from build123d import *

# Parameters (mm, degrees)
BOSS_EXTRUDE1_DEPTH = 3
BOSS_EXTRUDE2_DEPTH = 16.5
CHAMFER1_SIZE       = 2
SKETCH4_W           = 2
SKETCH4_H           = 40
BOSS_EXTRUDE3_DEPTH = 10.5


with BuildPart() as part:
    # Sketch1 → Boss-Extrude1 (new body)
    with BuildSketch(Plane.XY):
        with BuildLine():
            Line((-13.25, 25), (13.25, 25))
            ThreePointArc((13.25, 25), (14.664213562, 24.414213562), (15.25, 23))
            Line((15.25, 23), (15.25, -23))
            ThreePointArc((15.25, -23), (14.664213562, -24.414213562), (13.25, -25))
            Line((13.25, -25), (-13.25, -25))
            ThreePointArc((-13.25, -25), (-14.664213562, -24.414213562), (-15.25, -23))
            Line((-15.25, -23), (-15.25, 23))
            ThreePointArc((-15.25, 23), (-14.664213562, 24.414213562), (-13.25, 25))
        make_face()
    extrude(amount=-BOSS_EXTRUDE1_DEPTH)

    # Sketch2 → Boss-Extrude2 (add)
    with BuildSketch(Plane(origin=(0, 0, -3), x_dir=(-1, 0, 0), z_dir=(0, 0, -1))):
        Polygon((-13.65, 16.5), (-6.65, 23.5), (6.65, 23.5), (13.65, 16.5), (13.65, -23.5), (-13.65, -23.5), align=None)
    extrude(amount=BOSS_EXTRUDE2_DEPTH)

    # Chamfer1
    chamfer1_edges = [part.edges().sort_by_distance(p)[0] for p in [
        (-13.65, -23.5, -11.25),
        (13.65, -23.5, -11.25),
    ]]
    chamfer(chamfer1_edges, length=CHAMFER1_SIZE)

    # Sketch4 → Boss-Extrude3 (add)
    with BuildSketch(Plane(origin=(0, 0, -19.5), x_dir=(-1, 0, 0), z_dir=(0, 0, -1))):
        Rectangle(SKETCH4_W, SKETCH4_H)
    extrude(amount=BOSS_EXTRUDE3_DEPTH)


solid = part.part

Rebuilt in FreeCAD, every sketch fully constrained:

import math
import FreeCAD as App
import Part
import Sketcher
from FreeCAD import Vector
Q = App.Units.Quantity


def edges_at(feature, points):
    """Names of the edges that pass closest to the given points."""
    edges = feature.Shape.Edges
    near = lambda p: min(range(len(edges)), key=lambda i: edges[i].distToShape(Part.Vertex(*p))[0])
    return sorted({f"Edge{near(p) + 1}" for p in points})

doc = App.newDocument("Part")
body = doc.addObject("PartDesign::Body", "Body")

# Sketch on XY plane
sketch1 = body.newObject("Sketcher::SketchObject", "Sketch")
sketch1.AttachmentSupport = (doc.getObject("XY_Plane"), [""])
sketch1.MapMode = "FlatFace"
sketch1.addGeometry([
    Part.LineSegment(Vector(13.2, 25, 0), Vector(-13.2, 25, 0)),  # 0
    Part.ArcOfCircle(Part.Circle(Vector(-13.2, 23, 0), Vector(0, 0, 1), 2), math.radians(90), math.radians(180)),  # 1
    Part.LineSegment(Vector(-15.2, 23, 0), Vector(-15.2, -23, 0)),  # 2
    Part.ArcOfCircle(Part.Circle(Vector(-13.2, -23, 0), Vector(0, 0, 1), 2), math.radians(-180), math.radians(-90)),  # 3
    Part.LineSegment(Vector(-13.2, -25, 0), Vector(13.2, -25, 0)),  # 4
    Part.ArcOfCircle(Part.Circle(Vector(13.2, -23, 0), Vector(0, 0, 1), 2), math.radians(-90), math.radians(0)),  # 5
    Part.LineSegment(Vector(15.2, -23, 0), Vector(15.2, 23, 0)),  # 6
    Part.ArcOfCircle(Part.Circle(Vector(13.2, 23, 0), Vector(0, 0, 1), 2), math.radians(0), math.radians(90)),  # 7
], False)
sketch1.addConstraint([
    Sketcher.Constraint("Tangent", 0, 2, 1, 1),
    Sketcher.Constraint("Tangent", 1, 2, 2, 1),
    Sketcher.Constraint("Tangent", 2, 2, 3, 1),
    Sketcher.Constraint("Tangent", 3, 2, 4, 1),
    Sketcher.Constraint("Tangent", 4, 2, 5, 1),
    Sketcher.Constraint("Tangent", 5, 2, 6, 1),
    Sketcher.Constraint("Tangent", 6, 2, 7, 1),
    Sketcher.Constraint("Tangent", 7, 2, 0, 1),
    Sketcher.Constraint("Horizontal", 0),
    Sketcher.Constraint("Vertical", 2),
    Sketcher.Constraint("Horizontal", 4),
    Sketcher.Constraint("Vertical", 6),
    Sketcher.Constraint("Equal", 1, 3),
    Sketcher.Constraint("Equal", 3, 5),
    Sketcher.Constraint("Equal", 5, 7),
    Sketcher.Constraint("Symmetric", 1, 3, 5, 3, -1, 1),
    Sketcher.Constraint("Radius", 1, Q("2 mm")),
    Sketcher.Constraint("DistanceY", 2, 2, 2, 1, Q("46 mm")),
    Sketcher.Constraint("DistanceX", 0, 2, 0, 1, Q("26.5 mm")),
])
pad1 = body.newObject("PartDesign::Pad", "Pad")
pad1.Profile = sketch1
pad1.Length = 3
pad1.Reversed = True

# Sketch on XY plane
sketch2 = body.newObject("Sketcher::SketchObject", "Sketch001")
sketch2.AttachmentSupport = (doc.getObject("XY_Plane"), [""])
sketch2.MapMode = "FlatFace"
sketch2.AttachmentOffset = App.Placement(Vector(0, 0, -3), App.Rotation())
sketch2.addGeometry([
    Part.LineSegment(Vector(7, 24, 0), Vector(14, 16, 0)),  # 0
    Part.LineSegment(Vector(14, 16, 0), Vector(14, -24, 0)),  # 1
    Part.LineSegment(Vector(14, -24, 0), Vector(-14, -24, 0)),  # 2
    Part.LineSegment(Vector(-14, -24, 0), Vector(-14, 16, 0)),  # 3
    Part.LineSegment(Vector(-14, 16, 0), Vector(-7, 24, 0)),  # 4
    Part.LineSegment(Vector(-7, 24, 0), Vector(7, 24, 0)),  # 5
], False)
sketch2.addConstraint([
    Sketcher.Constraint("Coincident", 0, 2, 1, 1),
    Sketcher.Constraint("Coincident", 1, 2, 2, 1),
    Sketcher.Constraint("Coincident", 2, 2, 3, 1),
    Sketcher.Constraint("Coincident", 3, 2, 4, 1),
    Sketcher.Constraint("Coincident", 4, 2, 5, 1),
    Sketcher.Constraint("Coincident", 5, 2, 0, 1),
    Sketcher.Constraint("Vertical", 1),
    Sketcher.Constraint("Horizontal", 2),
    Sketcher.Constraint("Vertical", 3),
    Sketcher.Constraint("Horizontal", 5),
    Sketcher.Constraint("Symmetric", 0, 2, 3, 2, -2),
    Sketcher.Constraint("Perpendicular", 0, 4),
    Sketcher.Constraint("Equal", 0, 4),
    Sketcher.Constraint("DistanceY", 1, 2, 1, 1, Q("40 mm")),
    Sketcher.Constraint("DistanceX", 2, 2, 2, 1, Q("27.3 mm")),
    Sketcher.Constraint("DistanceX", 5, 1, 5, 2, Q("13.3 mm")),
    Sketcher.Constraint("DistanceY", -1, 1, 0, 2, Q("16.5 mm")),
])
pad2 = body.newObject("PartDesign::Pad", "Pad001")
pad2.Profile = sketch2
pad2.Length = 16.5
pad2.Reversed = True
doc.recompute()

chamfer = body.newObject("PartDesign::Chamfer", "Chamfer")
chamfer.Base = (pad2, edges_at(pad2, [(-13.65, -23.5, -11.25), (13.65, -23.5, -11.25)]))
chamfer.Size = 2

# Sketch on XY plane
sketch3 = body.newObject("Sketcher::SketchObject", "Sketch002")
sketch3.AttachmentSupport = (doc.getObject("XY_Plane"), [""])
sketch3.MapMode = "FlatFace"
sketch3.AttachmentOffset = App.Placement(Vector(0, 0, -19.5), App.Rotation())
sketch3.addGeometry([
    Part.LineSegment(Vector(1, 20, 0), Vector(1, -20, 0)),
    Part.LineSegment(Vector(1, -20, 0), Vector(-1, -20, 0)),
    Part.LineSegment(Vector(-1, -20, 0), Vector(-1, 20, 0)),
    Part.LineSegment(Vector(-1, 20, 0), Vector(1, 20, 0)),
], False)
sketch3.addConstraint([
    Sketcher.Constraint("Coincident", 0, 2, 1, 1),
    Sketcher.Constraint("Coincident", 1, 2, 2, 1),
    Sketcher.Constraint("Coincident", 2, 2, 3, 1),
    Sketcher.Constraint("Coincident", 3, 2, 0, 1),
    Sketcher.Constraint("Vertical", 0),
    Sketcher.Constraint("Horizontal", 1),
    Sketcher.Constraint("Vertical", 2),
    Sketcher.Constraint("Horizontal", 3),
    Sketcher.Constraint("Symmetric", 0, 2, 2, 2, -1, 1),
    Sketcher.Constraint("DistanceX", 1, 2, 1, 1, Q("2 mm")),
    Sketcher.Constraint("DistanceY", 0, 2, 0, 1, Q("40 mm")),
])
pad3 = body.newObject("PartDesign::Pad", "Pad002")
pad3.Profile = sketch3
pad3.Length = 10.5
pad3.Reversed = True

doc.recompute()
